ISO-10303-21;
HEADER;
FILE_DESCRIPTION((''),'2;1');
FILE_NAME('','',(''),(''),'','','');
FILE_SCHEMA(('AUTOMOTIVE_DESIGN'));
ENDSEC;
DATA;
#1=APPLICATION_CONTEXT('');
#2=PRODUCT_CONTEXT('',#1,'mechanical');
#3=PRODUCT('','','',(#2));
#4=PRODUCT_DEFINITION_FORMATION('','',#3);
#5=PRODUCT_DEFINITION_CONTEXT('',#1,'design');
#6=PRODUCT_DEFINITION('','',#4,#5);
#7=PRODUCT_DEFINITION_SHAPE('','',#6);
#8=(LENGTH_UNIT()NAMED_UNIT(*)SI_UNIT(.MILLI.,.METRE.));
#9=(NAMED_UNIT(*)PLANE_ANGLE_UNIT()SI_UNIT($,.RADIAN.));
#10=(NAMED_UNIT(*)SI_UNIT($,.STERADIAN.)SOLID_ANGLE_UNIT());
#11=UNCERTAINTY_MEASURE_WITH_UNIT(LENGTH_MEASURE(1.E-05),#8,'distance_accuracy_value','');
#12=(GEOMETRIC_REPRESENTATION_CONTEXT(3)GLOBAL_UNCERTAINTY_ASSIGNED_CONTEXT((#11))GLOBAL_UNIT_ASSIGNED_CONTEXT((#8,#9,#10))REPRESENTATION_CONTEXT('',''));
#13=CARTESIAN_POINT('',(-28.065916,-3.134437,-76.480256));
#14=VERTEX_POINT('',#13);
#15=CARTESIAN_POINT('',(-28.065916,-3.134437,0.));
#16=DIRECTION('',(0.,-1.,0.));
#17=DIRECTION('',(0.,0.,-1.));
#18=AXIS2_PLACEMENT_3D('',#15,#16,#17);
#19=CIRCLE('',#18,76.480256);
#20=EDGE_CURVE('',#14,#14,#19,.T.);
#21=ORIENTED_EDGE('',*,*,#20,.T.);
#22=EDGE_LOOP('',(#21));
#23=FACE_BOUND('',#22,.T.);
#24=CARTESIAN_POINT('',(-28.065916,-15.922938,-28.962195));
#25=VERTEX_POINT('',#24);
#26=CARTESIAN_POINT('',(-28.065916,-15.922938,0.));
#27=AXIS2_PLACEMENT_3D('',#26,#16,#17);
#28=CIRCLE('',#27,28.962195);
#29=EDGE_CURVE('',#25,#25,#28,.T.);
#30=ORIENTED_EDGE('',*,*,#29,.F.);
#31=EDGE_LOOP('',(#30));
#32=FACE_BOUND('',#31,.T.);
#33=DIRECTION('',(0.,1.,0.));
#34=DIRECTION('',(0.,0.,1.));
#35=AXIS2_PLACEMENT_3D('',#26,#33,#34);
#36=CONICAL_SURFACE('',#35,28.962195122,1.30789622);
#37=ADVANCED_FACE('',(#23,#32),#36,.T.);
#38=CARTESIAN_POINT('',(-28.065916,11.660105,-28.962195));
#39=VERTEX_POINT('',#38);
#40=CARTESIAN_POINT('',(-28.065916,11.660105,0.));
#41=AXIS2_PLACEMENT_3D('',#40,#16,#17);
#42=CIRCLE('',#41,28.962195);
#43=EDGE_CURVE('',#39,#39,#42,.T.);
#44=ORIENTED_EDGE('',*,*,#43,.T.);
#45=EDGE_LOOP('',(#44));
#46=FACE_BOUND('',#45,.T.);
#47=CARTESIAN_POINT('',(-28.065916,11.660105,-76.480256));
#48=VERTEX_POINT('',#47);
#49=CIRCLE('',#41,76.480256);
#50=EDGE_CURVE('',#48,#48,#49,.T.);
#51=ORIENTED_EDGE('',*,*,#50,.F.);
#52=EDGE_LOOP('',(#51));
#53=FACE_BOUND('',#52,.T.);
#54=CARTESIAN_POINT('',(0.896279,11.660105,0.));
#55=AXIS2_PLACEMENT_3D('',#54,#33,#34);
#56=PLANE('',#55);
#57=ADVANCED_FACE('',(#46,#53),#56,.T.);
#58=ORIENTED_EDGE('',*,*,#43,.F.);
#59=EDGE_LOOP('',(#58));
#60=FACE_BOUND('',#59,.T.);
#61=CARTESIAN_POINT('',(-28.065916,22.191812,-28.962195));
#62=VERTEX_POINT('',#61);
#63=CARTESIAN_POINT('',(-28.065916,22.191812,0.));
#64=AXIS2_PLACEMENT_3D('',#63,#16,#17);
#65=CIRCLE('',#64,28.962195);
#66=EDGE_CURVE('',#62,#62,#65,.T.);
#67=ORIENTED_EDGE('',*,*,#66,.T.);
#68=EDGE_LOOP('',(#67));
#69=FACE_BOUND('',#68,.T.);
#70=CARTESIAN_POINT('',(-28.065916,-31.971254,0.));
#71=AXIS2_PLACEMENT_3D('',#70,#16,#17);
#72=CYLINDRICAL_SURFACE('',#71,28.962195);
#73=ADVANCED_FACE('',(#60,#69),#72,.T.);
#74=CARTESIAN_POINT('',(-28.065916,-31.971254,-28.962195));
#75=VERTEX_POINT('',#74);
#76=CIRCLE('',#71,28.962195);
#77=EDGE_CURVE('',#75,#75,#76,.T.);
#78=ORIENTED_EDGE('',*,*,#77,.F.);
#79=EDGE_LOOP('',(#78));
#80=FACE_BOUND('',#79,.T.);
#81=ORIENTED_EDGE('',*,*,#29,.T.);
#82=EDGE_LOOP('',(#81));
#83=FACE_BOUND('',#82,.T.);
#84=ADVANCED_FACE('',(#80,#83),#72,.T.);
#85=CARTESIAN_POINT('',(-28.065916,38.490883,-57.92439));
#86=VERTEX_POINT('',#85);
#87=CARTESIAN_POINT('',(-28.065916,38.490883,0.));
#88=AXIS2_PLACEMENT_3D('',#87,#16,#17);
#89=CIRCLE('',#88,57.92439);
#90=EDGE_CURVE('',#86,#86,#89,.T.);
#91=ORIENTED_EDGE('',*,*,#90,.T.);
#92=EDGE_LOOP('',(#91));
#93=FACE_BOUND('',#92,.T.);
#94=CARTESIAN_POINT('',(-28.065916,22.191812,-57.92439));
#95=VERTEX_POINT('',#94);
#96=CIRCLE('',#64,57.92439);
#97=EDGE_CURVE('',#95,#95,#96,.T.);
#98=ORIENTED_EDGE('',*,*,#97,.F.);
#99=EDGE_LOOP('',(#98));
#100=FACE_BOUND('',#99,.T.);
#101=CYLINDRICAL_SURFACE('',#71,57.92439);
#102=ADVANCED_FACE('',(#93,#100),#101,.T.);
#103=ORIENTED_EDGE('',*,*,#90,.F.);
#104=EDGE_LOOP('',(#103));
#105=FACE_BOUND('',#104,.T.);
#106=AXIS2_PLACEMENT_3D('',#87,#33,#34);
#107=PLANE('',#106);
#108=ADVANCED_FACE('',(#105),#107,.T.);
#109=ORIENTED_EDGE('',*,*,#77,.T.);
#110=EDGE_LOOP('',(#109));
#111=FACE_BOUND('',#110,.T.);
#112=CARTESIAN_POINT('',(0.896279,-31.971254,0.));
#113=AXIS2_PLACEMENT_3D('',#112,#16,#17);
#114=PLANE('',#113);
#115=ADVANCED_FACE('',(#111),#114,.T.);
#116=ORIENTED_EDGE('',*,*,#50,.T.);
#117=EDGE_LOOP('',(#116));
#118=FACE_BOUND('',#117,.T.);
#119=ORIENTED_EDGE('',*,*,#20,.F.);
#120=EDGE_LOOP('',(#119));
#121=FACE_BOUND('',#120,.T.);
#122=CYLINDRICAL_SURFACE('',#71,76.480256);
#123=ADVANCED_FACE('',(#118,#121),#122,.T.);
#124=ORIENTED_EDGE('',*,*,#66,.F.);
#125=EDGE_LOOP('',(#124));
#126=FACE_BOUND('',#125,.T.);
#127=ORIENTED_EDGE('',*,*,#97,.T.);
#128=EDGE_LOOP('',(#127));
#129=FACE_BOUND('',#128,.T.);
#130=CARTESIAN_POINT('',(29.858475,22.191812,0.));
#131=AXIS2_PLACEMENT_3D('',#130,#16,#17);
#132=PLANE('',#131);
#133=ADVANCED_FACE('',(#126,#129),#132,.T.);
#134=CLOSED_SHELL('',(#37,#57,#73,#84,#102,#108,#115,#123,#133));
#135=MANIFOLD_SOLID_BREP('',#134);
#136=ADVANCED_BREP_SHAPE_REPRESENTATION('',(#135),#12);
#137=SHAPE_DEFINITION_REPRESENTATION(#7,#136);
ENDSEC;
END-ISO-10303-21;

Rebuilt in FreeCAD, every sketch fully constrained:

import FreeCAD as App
import Part
import Sketcher

doc = App.newDocument("Part")
body = doc.addObject("PartDesign::Body", "Body")

# Sketch on XY plane
sketch1 = body.newObject("Sketcher::SketchObject", "Sketch")
sketch1.AttachmentSupport = (doc.getObject("XY_Plane"), [""])
sketch1.MapMode = "FlatFace"
sketch1.addGeometry(Part.LineSegment(App.Vector(-28, 38, 0), App.Vector(-28, -32, 0)), False)
sketch1.addGeometry(Part.LineSegment(App.Vector(-28, -32, 0), App.Vector(1, -32, 0)), False)
sketch1.addGeometry(Part.LineSegment(App.Vector(1, -32, 0), App.Vector(1, -16, 0)), False)
sketch1.addGeometry(Part.LineSegment(App.Vector(1, -16, 0), App.Vector(48, -3, 0)), False)
sketch1.addGeometry(Part.LineSegment(App.Vector(48, -3, 0), App.Vector(48, 12, 0)), False)
sketch1.addGeometry(Part.LineSegment(App.Vector(48, 12, 0), App.Vector(1, 12, 0)), False)
sketch1.addGeometry(Part.LineSegment(App.Vector(1, 12, 0), App.Vector(1, 22, 0)), False)
sketch1.addGeometry(Part.LineSegment(App.Vector(1, 22, 0), App.Vector(30, 22, 0)), False)
sketch1.addGeometry(Part.LineSegment(App.Vector(30, 22, 0), App.Vector(30, 38, 0)), False)
sketch1.addGeometry(Part.LineSegment(App.Vector(30, 38, 0), App.Vector(-28, 38, 0)), False)
sketch1.addGeometry(Part.LineSegment(App.Vector(-28, -32, 0), App.Vector(-28, 38, 0)), True)  # axis
sketch1.addConstraint(Sketcher.Constraint("Coincident", 0, 2, 1, 1))
sketch1.addConstraint(Sketcher.Constraint("Coincident", 1, 2, 2, 1))
sketch1.addConstraint(Sketcher.Constraint("Coincident", 2, 2, 3, 1))
sketch1.addConstraint(Sketcher.Constraint("Coincident", 3, 2, 4, 1))
sketch1.addConstraint(Sketcher.Constraint("Coincident", 4, 2, 5, 1))
sketch1.addConstraint(Sketcher.Constraint("Coincident", 5, 2, 6, 1))
sketch1.addConstraint(Sketcher.Constraint("Coincident", 6, 2, 7, 1))
sketch1.addConstraint(Sketcher.Constraint("Coincident", 7, 2, 8, 1))
sketch1.addConstraint(Sketcher.Constraint("Coincident", 8, 2, 9, 1))
sketch1.addConstraint(Sketcher.Constraint("Coincident", 9, 2, 0, 1))
sketch1.addConstraint(Sketcher.Constraint("Vertical", 0))
sketch1.addConstraint(Sketcher.Constraint("Horizontal", 1))
sketch1.addConstraint(Sketcher.Constraint("Vertical", 2))
sketch1.addConstraint(Sketcher.Constraint("Vertical", 4))
sketch1.addConstraint(Sketcher.Constraint("Horizontal", 5))
sketch1.addConstraint(Sketcher.Constraint("Vertical", 6))
sketch1.addConstraint(Sketcher.Constraint("Horizontal", 7))
sketch1.addConstraint(Sketcher.Constraint("Vertical", 8))
sketch1.addConstraint(Sketcher.Constraint("Horizontal", 9))
sketch1.addConstraint(Sketcher.Constraint("Vertical", 10))
sketch1.addConstraint(Sketcher.Constraint("Coincident", 10, 1, 0, 2))
sketch1.addConstraint(Sketcher.Constraint("Horizontal", 8, 2, 10, 2))
sketch1.addConstraint(Sketcher.Constraint("Vertical", 2, 2, 5, 2))
sketch1.addConstraint(Sketcher.Constraint("Equal", 1, 7))
sketch1.addConstraint(Sketcher.Constraint("DistanceX", 5, 2, 5, 1, 47.51806))
sketch1.addConstraint(Sketcher.Constraint("DistanceX", 9, 2, 9, 1, 57.92439))
sketch1.addConstraint(Sketcher.Constraint("DistanceY", 4, 1, 4, 2, 14.794541))
sketch1.addConstraint(Sketcher.Constraint("DistanceY", 8, 1, 8, 2, 16.299071))
sketch1.addConstraint(Sketcher.Constraint("DistanceY", 2, 2, 3, 2, 12.788502))
sketch1.addConstraint(Sketcher.Constraint("DistanceY", 0, 2, 0, 1, 70.462137))
sketch1.addConstraint(Sketcher.Constraint("DistanceY", 2, 1, 2, 2, 16.048316))
sketch1.addConstraint(Sketcher.Constraint("DistanceX", -1, 1, 1, 2, 0.896279))
sketch1.addConstraint(Sketcher.Constraint("DistanceY", 2, 2, -1, 1, 15.922938))
revolution = body.newObject("PartDesign::Revolution", "Revolution")
revolution.Profile = sketch1
revolution.ReferenceAxis = (sketch1, ["Axis0"])
revolution.Angle = 360

doc.recompute()
